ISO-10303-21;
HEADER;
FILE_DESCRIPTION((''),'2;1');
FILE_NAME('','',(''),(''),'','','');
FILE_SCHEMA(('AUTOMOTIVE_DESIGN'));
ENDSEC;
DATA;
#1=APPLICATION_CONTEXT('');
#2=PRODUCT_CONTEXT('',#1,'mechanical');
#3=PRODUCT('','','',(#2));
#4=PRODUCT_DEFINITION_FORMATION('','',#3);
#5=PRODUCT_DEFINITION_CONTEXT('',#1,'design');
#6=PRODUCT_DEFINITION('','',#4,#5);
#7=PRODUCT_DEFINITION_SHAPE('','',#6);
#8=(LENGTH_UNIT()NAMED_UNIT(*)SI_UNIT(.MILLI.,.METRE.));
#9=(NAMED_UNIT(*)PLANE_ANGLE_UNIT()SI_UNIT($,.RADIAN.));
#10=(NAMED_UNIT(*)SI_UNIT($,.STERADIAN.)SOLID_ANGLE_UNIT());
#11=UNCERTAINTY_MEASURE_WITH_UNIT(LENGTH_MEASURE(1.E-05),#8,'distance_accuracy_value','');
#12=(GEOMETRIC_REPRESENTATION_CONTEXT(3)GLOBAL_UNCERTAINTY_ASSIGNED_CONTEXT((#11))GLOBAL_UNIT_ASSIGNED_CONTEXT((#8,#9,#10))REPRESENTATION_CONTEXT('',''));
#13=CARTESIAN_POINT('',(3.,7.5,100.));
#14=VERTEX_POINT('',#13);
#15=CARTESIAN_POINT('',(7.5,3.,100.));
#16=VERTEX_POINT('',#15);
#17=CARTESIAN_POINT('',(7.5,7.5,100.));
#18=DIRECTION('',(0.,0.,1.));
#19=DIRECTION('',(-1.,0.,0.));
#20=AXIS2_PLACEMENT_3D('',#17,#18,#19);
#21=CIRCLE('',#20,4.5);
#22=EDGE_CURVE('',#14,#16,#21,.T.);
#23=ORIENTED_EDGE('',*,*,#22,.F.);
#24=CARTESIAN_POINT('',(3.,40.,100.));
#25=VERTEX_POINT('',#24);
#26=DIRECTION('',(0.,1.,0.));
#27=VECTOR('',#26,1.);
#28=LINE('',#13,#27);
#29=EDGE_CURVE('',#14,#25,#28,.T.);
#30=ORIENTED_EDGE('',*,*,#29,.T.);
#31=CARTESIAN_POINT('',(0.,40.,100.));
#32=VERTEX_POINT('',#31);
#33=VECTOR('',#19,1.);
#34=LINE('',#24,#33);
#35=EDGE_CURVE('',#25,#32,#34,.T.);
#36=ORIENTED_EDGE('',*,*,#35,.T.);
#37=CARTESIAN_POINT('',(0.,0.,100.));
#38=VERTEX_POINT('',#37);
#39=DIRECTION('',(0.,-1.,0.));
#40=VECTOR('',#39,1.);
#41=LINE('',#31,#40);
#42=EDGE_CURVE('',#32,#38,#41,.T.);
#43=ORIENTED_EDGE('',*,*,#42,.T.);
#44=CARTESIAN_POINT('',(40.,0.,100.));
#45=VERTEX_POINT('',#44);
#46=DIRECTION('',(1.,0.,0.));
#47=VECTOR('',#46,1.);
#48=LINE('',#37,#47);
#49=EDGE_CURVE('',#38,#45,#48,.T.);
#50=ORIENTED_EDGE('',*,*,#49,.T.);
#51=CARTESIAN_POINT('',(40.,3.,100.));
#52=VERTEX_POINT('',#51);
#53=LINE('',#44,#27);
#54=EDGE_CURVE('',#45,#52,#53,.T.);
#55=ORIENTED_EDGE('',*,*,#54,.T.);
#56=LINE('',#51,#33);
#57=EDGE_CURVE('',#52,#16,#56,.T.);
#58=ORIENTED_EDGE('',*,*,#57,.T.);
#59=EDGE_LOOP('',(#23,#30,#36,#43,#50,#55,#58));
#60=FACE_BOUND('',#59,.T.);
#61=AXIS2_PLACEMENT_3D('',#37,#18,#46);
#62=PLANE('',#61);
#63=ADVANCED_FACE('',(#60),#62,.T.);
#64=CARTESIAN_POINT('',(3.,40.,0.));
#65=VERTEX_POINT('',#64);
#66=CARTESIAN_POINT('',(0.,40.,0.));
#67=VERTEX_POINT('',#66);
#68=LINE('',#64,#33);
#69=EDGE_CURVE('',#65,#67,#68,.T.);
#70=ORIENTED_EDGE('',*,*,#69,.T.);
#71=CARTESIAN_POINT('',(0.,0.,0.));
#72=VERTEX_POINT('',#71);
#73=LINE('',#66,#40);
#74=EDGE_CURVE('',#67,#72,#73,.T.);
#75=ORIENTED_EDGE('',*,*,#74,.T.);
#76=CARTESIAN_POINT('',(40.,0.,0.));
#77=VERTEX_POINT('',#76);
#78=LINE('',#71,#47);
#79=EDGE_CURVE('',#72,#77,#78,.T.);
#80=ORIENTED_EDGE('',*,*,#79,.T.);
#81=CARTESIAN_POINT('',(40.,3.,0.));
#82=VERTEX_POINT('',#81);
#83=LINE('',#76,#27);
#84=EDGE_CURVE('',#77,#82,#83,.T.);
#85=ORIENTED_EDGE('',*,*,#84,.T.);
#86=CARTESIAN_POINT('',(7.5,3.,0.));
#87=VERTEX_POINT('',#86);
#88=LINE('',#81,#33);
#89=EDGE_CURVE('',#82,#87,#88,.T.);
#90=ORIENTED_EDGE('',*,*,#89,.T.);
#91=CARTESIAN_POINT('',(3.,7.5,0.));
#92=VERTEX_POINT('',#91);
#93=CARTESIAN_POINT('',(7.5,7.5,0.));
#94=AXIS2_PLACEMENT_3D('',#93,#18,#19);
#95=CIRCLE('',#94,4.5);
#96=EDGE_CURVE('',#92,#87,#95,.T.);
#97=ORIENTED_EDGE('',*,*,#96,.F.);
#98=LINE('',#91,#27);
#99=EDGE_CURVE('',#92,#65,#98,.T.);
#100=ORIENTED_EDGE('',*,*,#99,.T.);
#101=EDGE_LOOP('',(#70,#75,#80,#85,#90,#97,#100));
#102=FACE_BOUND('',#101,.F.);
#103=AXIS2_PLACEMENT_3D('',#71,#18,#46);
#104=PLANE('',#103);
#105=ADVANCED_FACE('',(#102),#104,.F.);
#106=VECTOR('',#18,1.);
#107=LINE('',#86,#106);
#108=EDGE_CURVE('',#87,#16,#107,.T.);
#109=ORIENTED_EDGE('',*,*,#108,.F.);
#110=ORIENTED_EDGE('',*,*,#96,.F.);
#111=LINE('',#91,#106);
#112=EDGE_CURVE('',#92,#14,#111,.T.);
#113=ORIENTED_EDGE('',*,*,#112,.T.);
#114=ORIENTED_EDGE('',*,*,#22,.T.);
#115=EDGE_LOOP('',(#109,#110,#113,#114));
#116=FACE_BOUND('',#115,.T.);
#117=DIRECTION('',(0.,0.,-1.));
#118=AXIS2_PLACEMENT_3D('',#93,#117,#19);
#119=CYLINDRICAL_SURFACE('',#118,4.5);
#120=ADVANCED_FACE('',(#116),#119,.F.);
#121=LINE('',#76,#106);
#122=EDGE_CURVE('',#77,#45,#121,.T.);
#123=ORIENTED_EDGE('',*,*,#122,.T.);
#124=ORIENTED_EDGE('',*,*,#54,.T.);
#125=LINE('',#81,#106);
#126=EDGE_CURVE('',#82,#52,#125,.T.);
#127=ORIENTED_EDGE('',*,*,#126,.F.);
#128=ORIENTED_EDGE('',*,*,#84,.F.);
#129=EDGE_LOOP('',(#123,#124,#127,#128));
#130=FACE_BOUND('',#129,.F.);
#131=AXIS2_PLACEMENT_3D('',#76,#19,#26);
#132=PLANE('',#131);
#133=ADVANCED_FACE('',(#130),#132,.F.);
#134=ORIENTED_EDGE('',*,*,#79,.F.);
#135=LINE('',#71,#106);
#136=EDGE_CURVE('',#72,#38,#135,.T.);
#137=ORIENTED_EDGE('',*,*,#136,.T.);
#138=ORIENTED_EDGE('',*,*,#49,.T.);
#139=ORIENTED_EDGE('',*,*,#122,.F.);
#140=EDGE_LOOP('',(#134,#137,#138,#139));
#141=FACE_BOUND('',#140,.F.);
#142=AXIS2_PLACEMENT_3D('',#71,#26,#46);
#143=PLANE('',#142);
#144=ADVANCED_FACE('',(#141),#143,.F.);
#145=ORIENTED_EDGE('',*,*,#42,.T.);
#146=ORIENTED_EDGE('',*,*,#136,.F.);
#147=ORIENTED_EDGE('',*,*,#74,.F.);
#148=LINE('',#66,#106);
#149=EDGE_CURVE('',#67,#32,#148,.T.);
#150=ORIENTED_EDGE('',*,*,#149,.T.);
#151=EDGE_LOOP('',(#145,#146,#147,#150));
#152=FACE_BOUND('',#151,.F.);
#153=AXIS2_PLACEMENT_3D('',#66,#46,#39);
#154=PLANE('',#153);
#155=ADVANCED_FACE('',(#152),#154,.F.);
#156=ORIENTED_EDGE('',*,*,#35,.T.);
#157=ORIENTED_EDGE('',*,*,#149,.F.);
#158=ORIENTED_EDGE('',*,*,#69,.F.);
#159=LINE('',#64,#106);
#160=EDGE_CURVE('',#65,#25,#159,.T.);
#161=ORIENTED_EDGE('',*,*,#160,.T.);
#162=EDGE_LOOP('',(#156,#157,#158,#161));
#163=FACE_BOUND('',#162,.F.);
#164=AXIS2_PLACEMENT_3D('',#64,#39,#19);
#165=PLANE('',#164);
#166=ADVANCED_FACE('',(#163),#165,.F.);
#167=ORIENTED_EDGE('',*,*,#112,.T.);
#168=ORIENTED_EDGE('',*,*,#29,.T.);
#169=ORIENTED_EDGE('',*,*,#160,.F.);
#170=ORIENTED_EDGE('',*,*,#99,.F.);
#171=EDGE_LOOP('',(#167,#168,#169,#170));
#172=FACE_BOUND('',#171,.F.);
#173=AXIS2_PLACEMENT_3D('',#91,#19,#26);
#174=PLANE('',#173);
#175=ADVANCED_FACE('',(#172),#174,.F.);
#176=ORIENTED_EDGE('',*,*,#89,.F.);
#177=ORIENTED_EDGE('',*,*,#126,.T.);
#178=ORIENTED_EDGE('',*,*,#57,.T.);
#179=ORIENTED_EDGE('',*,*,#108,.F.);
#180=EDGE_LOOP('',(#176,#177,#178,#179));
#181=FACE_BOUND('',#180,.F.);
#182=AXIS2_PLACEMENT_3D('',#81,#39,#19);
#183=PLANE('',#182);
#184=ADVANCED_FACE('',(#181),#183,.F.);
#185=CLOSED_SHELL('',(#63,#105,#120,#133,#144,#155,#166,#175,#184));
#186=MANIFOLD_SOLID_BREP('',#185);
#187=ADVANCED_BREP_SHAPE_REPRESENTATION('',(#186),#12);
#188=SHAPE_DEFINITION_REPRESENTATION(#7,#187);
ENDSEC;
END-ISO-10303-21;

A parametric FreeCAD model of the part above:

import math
import FreeCAD as App
import Part
import Sketcher
from FreeCAD import Vector
Q = App.Units.Quantity

doc = App.newDocument("Part")
body = doc.addObject("PartDesign::Body", "Body")

# Sketch on XY plane
sketch1 = doc.addObject("Sketcher::SketchObject", "Sketch")
body.addObject(sketch1)
sketch1.AttachmentSupport = (doc.XY_Plane, [""])
sketch1.MapMode = "FlatFace"
sketch1.addGeometry(Part.LineSegment(Vector(40, 0, 0), Vector(40, 3, 0)), False)
sketch1.addGeometry(Part.LineSegment(Vector(40, 3, 0), Vector(7.5, 3, 0)), False)
sketch1.addGeometry(Part.ArcOfCircle(Part.Circle(Vector(7.5, 7.5, 0), Vector(0, 0, 1), 4.5), math.radians(180), math.radians(270)), False)
sketch1.addGeometry(Part.LineSegment(Vector(3, 7.5, 0), Vector(3, 40, 0)), False)
sketch1.addGeometry(Part.LineSegment(Vector(3, 40, 0), Vector(0, 40, 0)), False)
sketch1.addGeometry(Part.LineSegment(Vector(0, 40, 0), Vector(0, 0, 0)), False)
sketch1.addGeometry(Part.LineSegment(Vector(0, 0, 0), Vector(40, 0, 0)), False)
sketch1.addConstraint(Sketcher.Constraint("Coincident", 0, 2, 1, 1))
sketch1.addConstraint(Sketcher.Constraint("Tangent", 1, 2, 2, 2))
sketch1.addConstraint(Sketcher.Constraint("Tangent", 2, 1, 3, 1))
sketch1.addConstraint(Sketcher.Constraint("Coincident", 3, 2, 4, 1))
sketch1.addConstraint(Sketcher.Constraint("Coincident", 4, 2, 5, 1))
sketch1.addConstraint(Sketcher.Constraint("Coincident", 5, 2, 6, 1))
sketch1.addConstraint(Sketcher.Constraint("Coincident", 6, 2, 0, 1))
sketch1.addConstraint(Sketcher.Constraint("Vertical", 0))
sketch1.addConstraint(Sketcher.Constraint("Horizontal", 1))
sketch1.addConstraint(Sketcher.Constraint("Vertical", 3))
sketch1.addConstraint(Sketcher.Constraint("Horizontal", 4))
sketch1.addConstraint(Sketcher.Constraint("Vertical", 5))
sketch1.addConstraint(Sketcher.Constraint("Horizontal", 6))
sketch1.addConstraint(Sketcher.Constraint("Coincident", 5, 2, -1, 1))
sketch1.addConstraint(Sketcher.Constraint("Equal", 4, 0))
sketch1.addConstraint(Sketcher.Constraint("Equal", 1, 3))
sketch1.addConstraint(Sketcher.Constraint("Radius", 2, Q("4.5 mm")))
sketch1.addConstraint(Sketcher.Constraint("DistanceX", 4, 2, 4, 1, Q("3 mm")))
sketch1.addConstraint(Sketcher.Constraint("DistanceX", 6, 1, 6, 2, Q("40 mm")))
pad1 = doc.addObject("PartDesign::Pad", "Pad")
body.addObject(pad1)
pad1.Profile = sketch1
pad1.Length = 100

doc.recompute()
